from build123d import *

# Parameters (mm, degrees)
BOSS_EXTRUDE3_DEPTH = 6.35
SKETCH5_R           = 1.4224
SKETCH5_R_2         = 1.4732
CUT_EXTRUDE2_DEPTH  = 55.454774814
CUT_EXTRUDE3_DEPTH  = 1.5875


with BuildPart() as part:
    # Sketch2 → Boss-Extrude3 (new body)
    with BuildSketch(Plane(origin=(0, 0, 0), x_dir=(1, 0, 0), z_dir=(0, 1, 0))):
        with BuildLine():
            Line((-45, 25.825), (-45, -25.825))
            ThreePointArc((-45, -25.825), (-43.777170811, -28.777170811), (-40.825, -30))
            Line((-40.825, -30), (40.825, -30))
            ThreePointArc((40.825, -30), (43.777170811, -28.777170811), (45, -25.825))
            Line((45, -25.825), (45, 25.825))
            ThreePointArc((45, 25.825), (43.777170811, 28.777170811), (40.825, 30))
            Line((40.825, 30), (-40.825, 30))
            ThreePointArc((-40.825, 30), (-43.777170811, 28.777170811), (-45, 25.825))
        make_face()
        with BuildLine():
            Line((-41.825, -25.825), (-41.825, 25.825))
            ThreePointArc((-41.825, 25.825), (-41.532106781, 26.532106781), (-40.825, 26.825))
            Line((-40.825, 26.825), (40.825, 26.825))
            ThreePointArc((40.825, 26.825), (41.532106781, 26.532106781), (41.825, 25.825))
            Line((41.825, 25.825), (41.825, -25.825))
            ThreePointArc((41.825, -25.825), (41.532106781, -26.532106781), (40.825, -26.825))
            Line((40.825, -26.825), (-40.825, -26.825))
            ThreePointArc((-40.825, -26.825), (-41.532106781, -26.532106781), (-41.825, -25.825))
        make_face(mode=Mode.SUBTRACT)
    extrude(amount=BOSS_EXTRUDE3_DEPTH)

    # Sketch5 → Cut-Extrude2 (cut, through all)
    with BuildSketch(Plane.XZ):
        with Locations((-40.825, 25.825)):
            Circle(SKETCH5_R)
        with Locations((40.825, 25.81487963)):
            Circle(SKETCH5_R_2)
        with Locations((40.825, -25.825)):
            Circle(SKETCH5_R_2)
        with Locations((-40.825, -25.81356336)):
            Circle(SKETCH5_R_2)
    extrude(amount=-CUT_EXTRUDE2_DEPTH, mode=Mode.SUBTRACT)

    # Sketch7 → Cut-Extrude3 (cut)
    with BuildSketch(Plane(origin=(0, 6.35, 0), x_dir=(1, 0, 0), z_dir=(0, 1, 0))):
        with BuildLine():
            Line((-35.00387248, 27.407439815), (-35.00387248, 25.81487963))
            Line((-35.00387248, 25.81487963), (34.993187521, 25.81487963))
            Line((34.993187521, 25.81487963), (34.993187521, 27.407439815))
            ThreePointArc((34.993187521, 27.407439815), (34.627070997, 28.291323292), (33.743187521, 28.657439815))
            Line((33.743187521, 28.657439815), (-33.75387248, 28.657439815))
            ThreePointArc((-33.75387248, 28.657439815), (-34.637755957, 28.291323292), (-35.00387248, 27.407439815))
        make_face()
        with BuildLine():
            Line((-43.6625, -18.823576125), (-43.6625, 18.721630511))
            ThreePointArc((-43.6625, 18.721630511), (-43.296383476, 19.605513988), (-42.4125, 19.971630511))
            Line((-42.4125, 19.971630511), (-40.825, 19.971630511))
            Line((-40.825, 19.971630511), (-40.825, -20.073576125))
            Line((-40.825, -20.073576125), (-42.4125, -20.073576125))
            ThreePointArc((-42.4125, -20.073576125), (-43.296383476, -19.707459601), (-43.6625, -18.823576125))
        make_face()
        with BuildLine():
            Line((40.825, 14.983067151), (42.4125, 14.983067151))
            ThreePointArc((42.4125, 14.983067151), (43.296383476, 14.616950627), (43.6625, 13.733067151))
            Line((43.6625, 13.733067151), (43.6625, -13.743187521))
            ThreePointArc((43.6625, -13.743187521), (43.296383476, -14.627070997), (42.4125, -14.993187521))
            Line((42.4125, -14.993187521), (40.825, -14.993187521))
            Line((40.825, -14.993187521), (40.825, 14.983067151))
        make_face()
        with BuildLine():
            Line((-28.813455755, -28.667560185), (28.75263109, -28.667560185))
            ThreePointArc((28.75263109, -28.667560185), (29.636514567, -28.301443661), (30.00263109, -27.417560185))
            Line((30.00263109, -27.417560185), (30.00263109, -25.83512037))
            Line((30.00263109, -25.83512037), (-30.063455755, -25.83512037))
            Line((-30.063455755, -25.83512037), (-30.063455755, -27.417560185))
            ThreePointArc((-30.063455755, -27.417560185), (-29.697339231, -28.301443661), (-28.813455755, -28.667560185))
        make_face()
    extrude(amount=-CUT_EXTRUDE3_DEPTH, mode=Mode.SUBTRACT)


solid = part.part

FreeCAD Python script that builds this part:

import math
import FreeCAD as App
import Part
import Sketcher
from FreeCAD import Vector
Q = App.Units.Quantity

doc = App.newDocument("Part")
body = doc.addObject("PartDesign::Body", "Body")

sketch1 = doc.addObject("Sketcher::SketchObject", "Sketch")
body.addObject(sketch1)
sketch1.AttachmentSupport = (doc.XZ_Plane, [""])
sketch1.MapMode = "FlatFace"
sketch1.addGeometry([
    Part.LineSegment(Vector(-45, -25.8, 0), Vector(-45, 25.8, 0)),
    Part.ArcOfCircle(Part.Circle(Vector(-40.8, 25.8, 0), Vector(0, 0, 1), 4.2), math.radians(90), math.radians(180)),
    Part.LineSegment(Vector(-40.8, 30, 0), Vector(40.8, 30, 0)),
    Part.ArcOfCircle(Part.Circle(Vector(40.8, 25.8, 0), Vector(0, 0, 1), 4.2), math.radians(0), math.radians(90)),
    Part.LineSegment(Vector(45, 25.8, 0), Vector(45, -25.8, 0)),
    Part.ArcOfCircle(Part.Circle(Vector(40.8, -25.8, 0), Vector(0, 0, 1), 4.2), math.radians(-90), math.radians(0)),
    Part.LineSegment(Vector(40.8, -30, 0), Vector(-40.8, -30, 0)),
    Part.ArcOfCircle(Part.Circle(Vector(-40.8, -25.8, 0), Vector(0, 0, 1), 4.2), math.radians(-180), math.radians(-90)),
    Part.ArcOfCircle(Part.Circle(Vector(-40.8, 25.8, 0), Vector(0, 0, 1), 1), math.radians(90), math.radians(180)),
    Part.LineSegment(Vector(-41.8, 25.8, 0), Vector(-41.8, -25.8, 0)),
    Part.ArcOfCircle(Part.Circle(Vector(-40.8, -25.8, 0), Vector(0, 0, 1), 1), math.radians(-180), math.radians(-90)),
    Part.LineSegment(Vector(-40.8, -26.8, 0), Vector(40.8, -26.8, 0)),
    Part.ArcOfCircle(Part.Circle(Vector(40.8, -25.8, 0), Vector(0, 0, 1), 1), math.radians(-90), math.radians(0)),
    Part.LineSegment(Vector(41.8, -25.8, 0), Vector(41.8, 25.8, 0)),
    Part.ArcOfCircle(Part.Circle(Vector(40.8, 25.8, 0), Vector(0, 0, 1), 1), math.radians(0), math.radians(90)),
    Part.LineSegment(Vector(40.8, 26.8, 0), Vector(-40.8, 26.8, 0)),
], False)
sketch1.addConstraint([
    Sketcher.Constraint("Tangent", 0, 2, 1, 2),
    Sketcher.Constraint("Tangent", 1, 1, 2, 1),
    Sketcher.Constraint("Tangent", 2, 2, 3, 2),
    Sketcher.Constraint("Tangent", 3, 1, 4, 1),
    Sketcher.Constraint("Tangent", 4, 2, 5, 2),
    Sketcher.Constraint("Tangent", 5, 1, 6, 1),
    Sketcher.Constraint("Tangent", 6, 2, 7, 2),
    Sketcher.Constraint("Tangent", 7, 1, 0, 1),
    Sketcher.Constraint("Tangent", 8, 2, 9, 1),
    Sketcher.Constraint("Tangent", 9, 2, 10, 1),
    Sketcher.Constraint("Tangent", 10, 2, 11, 1),
    Sketcher.Constraint("Tangent", 11, 2, 12, 1),
    Sketcher.Constraint("Tangent", 12, 2, 13, 1),
    Sketcher.Constraint("Tangent", 13, 2, 14, 1),
    Sketcher.Constraint("Tangent", 14, 2, 15, 1),
    Sketcher.Constraint("Tangent", 15, 2, 8, 1),
    Sketcher.Constraint("Vertical", 0),
    Sketcher.Constraint("Horizontal", 2),
    Sketcher.Constraint("Vertical", 4),
    Sketcher.Constraint("Horizontal", 6),
    Sketcher.Constraint("Vertical", 9),
    Sketcher.Constraint("Horizontal", 11),
    Sketcher.Constraint("Vertical", 13),
    Sketcher.Constraint("Horizontal", 15),
    Sketcher.Constraint("Coincident", 8, 3, 1, 3),
    Sketcher.Constraint("Coincident", 10, 3, 7, 3),
    Sketcher.Constraint("Coincident", 12, 3, 5, 3),
    Sketcher.Constraint("Equal", 1, 3),
    Sketcher.Constraint("Equal", 3, 5),
    Sketcher.Constraint("Equal", 5, 7),
    Sketcher.Constraint("Equal", 12, 14),
    Sketcher.Constraint("Symmetric", 1, 3, 5, 3, -1, 1),
    Sketcher.Constraint("Radius", 1, 4.175),
    Sketcher.Constraint("Radius", 8, 1.0),
    Sketcher.Constraint("DistanceX", 2, 1, 2, 2, 81.65),
    Sketcher.Constraint("DistanceY", 0, 1, 0, 2, 51.65),
])
pad1 = doc.addObject("PartDesign::Pad", "Pad")
body.addObject(pad1)
pad1.Profile = sketch1
pad1.Length = Q("0.25 in")
pad1.Reversed = True

sketch2 = doc.addObject("Sketcher::SketchObject", "Sketch001")
body.addObject(sketch2)
sketch2.AttachmentSupport = (doc.XZ_Plane, [""])
sketch2.MapMode = "FlatFace"
sketch2.addGeometry([
    Part.Circle(Vector(-40.8, 25.8, 0), Vector(0, 0, 1), 1.4),
    Part.Circle(Vector(40.8, 25.8, 0), Vector(0, 0, 1), 1.5),
    Part.Circle(Vector(40.8, -25.8, 0), Vector(0, 0, 1), 1.5),
    Part.Circle(Vector(-40.8, -25.8, 0), Vector(0, 0, 1), 1.5),
], False)
sketch2.addConstraint([
    Sketcher.Constraint("Equal", 1, 2),
    Sketcher.Constraint("Equal", 2, 3),
    Sketcher.Constraint("Symmetric", 0, 3, 2, 3, -1, 1),
    Sketcher.Constraint("Vertical", 1, 3, 2, 3),
    Sketcher.Constraint("Vertical", 0, 3, 3, 3),
    Sketcher.Constraint("Diameter", 0, Q("0.112 in")),
    Sketcher.Constraint("Diameter", 1, Q("0.116 in")),
    Sketcher.Constraint("DistanceX", 0, 3, -1, 1, 40.825),
    Sketcher.Constraint("DistanceY", -1, 1, 0, 3, 25.825),
    Sketcher.Constraint("DistanceY", -1, 1, 1, 3, 25.81488),
    Sketcher.Constraint("DistanceY", 3, 3, -1, 1, 25.813563),
])
pocket1 = doc.addObject("PartDesign::Pocket", "Pocket")
body.addObject(pocket1)
pocket1.Profile = sketch2
pocket1.Type = "ThroughAll"

sketch3 = doc.addObject("Sketcher::SketchObject", "Sketch002")
body.addObject(sketch3)
sketch3.AttachmentSupport = (doc.XZ_Plane, [""])
sketch3.MapMode = "FlatFace"
sketch3.AttachmentOffset = App.Placement(Vector(0, 0, -0.25 * 25.4), App.Rotation())
sketch3.addGeometry([
    Part.LineSegment(Vector(-35, -27.4, 0), Vector(-35, -25.8, 0)),
    Part.LineSegment(Vector(-35, -25.8, 0), Vector(35, -25.8, 0)),
    Part.LineSegment(Vector(35, -25.8, 0), Vector(35, -27.4, 0)),
    Part.ArcOfCircle(Part.Circle(Vector(33.7, -27.4, 0), Vector(0, 0, 1), 1.2), math.radians(-90), math.radians(0)),
    Part.LineSegment(Vector(33.7, -28.7, 0), Vector(-33.8, -28.7, 0)),
    Part.ArcOfCircle(Part.Circle(Vector(-33.8, -27.4, 0), Vector(0, 0, 1), 1.2), math.radians(180), math.radians(270)),
    Part.LineSegment(Vector(-43.7, -18.7, 0), Vector(-43.7, 18.8, 0)),
    Part.ArcOfCircle(Part.Circle(Vector(-42.4, 18.8, 0), Vector(0, 0, 1), 1.3), math.radians(90), math.radians(180)),
    Part.LineSegment(Vector(-42.4, 20.1, 0), Vector(-40.8, 20.1, 0)),
    Part.LineSegment(Vector(-40.8, 20.1, 0), Vector(-40.8, -20, 0)),
    Part.LineSegment(Vector(-40.8, -20, 0), Vector(-42.4, -20, 0)),
    Part.ArcOfCircle(Part.Circle(Vector(-42.4, -18.7, 0), Vector(0, 0, 1), 1.2), math.radians(180), math.radians(270)),
    Part.LineSegment(Vector(42.4, -15, 0), Vector(40.8, -15, 0)),
    Part.LineSegment(Vector(40.8, -15, 0), Vector(40.8, 15, 0)),
    Part.LineSegment(Vector(40.8, 15, 0), Vector(42.4, 15, 0)),
    Part.ArcOfCircle(Part.Circle(Vector(42.4, 13.7, 0), Vector(0, 0, 1), 1.3), math.radians(0), math.radians(90)),
    Part.LineSegment(Vector(43.7, 13.7, 0), Vector(43.7, -13.7, 0)),
    Part.ArcOfCircle(Part.Circle(Vector(42.4, -13.7, 0), Vector(0, 0, 1), 1.3), math.radians(-90), math.radians(0)),
    Part.LineSegment(Vector(-28.8, 28.7, 0), Vector(28.8, 28.7, 0)),
    Part.ArcOfCircle(Part.Circle(Vector(28.8, 27.4, 0), Vector(0, 0, 1), 1.2), math.radians(0), math.radians(90)),
    Part.LineSegment(Vector(30, 27.4, 0), Vector(30, 25.8, 0)),
    Part.LineSegment(Vector(30, 25.8, 0), Vector(-30.1, 25.8, 0)),
    Part.LineSegment(Vector(-30.1, 25.8, 0), Vector(-30.1, 27.4, 0)),
    Part.ArcOfCircle(Part.Circle(Vector(-28.8, 27.4, 0), Vector(0, 0, 1), 1.3), math.radians(90), math.radians(180)),
], False)
sketch3.addConstraint([
    Sketcher.Constraint("Coincident", 0, 2, 1, 1),
    Sketcher.Constraint("Coincident", 1, 2, 2, 1),
    Sketcher.Constraint("Tangent", 2, 2, 3, 2),
    Sketcher.Constraint("Tangent", 3, 1, 4, 1),
    Sketcher.Constraint("Tangent", 4, 2, 5, 2),
    Sketcher.Constraint("Tangent", 5, 1, 0, 1),
    Sketcher.Constraint("Tangent", 6, 2, 7, 2),
    Sketcher.Constraint("Tangent", 7, 1, 8, 1),
    Sketcher.Constraint("Coincident", 8, 2, 9, 1),
    Sketcher.Constraint("Coincident", 9, 2, 10, 1),
    Sketcher.Constraint("Tangent", 10, 2, 11, 2),
    Sketcher.Constraint("Tangent", 11, 1, 6, 1),
    Sketcher.Constraint("Coincident", 12, 2, 13, 1),
    Sketcher.Constraint("Coincident", 13, 2, 14, 1),
    Sketcher.Constraint("Tangent", 14, 2, 15, 2),
    Sketcher.Constraint("Tangent", 15, 1, 16, 1),
    Sketcher.Constraint("Tangent", 16, 2, 17, 2),
    Sketcher.Constraint("Tangent", 17, 1, 12, 1),
    Sketcher.Constraint("Tangent", 18, 2, 19, 2),
    Sketcher.Constraint("Tangent", 19, 1, 20, 1),
    Sketcher.Constraint("Coincident", 20, 2, 21, 1),
    Sketcher.Constraint("Coincident", 21, 2, 22, 1),
    Sketcher.Constraint("Tangent", 22, 2, 23, 2),
    Sketcher.Constraint("Tangent", 23, 1, 18, 1),
    Sketcher.Constraint("Vertical", 0),
    Sketcher.Constraint("Horizontal", 1),
    Sketcher.Constraint("Vertical", 2),
    Sketcher.Constraint("Horizontal", 4),
    Sketcher.Constraint("Vertical", 6),
    Sketcher.Constraint("Horizontal", 8),
    Sketcher.Constraint("Vertical", 9),
    Sketcher.Constraint("Horizontal", 10),
    Sketcher.Constraint("Horizontal", 12),
    Sketcher.Constraint("Vertical", 13),
    Sketcher.Constraint("Horizontal", 14),
    Sketcher.Constraint("Vertical", 16),
    Sketcher.Constraint("Horizontal", 18),
    Sketcher.Constraint("Vertical", 20),
    Sketcher.Constraint("Horizontal", 21),
    Sketcher.Constraint("Vertical", 22),
    Sketcher.Constraint("Equal", 3, 5),
    Sketcher.Constraint("Equal", 5, 7),
    Sketcher.Constraint("Equal", 7, 11),
    Sketcher.Constraint("Equal", 11, 15),
    Sketcher.Constraint("Equal", 15, 17),
    Sketcher.Constraint("Equal", 17, 19),
    Sketcher.Constraint("Equal", 19, 23),
    Sketcher.Constraint("Equal", 10, 12),
    Sketcher.Constraint("DistanceX", 8, 1, 8, 2, Q("0.0625 in")),
    Sketcher.Constraint("Radius", 3, 1.25),
    Sketcher.Constraint("DistanceY", 11, 3, 17, 3, Q("0.1964001 in")),
    Sketcher.Constraint("DistanceX", 1, 1, 1, 2, 69.99706),
    Sketcher.Constraint("DistanceY", 0, 1, 0, 2, 1.59256),
    Sketcher.Constraint("DistanceY", 20, 2, 20, 1, 1.58244),
    Sketcher.Constraint("DistanceX", 7, 3, -1, 1, 42.4125),
    Sketcher.Constraint("DistanceX", -1, 1, 15, 3, 42.4125),
    Sketcher.Constraint("DistanceY", 3, 3, 19, 3, 54.825),
    Sketcher.Constraint("DistanceX", 18, 1, 18, 2, 57.566087),
    Sketcher.Constraint("DistanceY", 6, 1, 6, 2, 37.545207),
    Sketcher.Constraint("DistanceY", 13, 1, 13, 2, 29.976255),
    Sketcher.Constraint("DistanceY", 3, 3, -1, 1, 27.40744),
    Sketcher.Constraint("DistanceY", 11, 3, -1, 1, 18.721631),
    Sketcher.Constraint("DistanceX", -1, 1, 19, 3, 28.752631),
    Sketcher.Constraint("DistanceX", -1, 1, 3, 3, 33.743188),
])
pocket2 = doc.addObject("PartDesign::Pocket", "Pocket001")
body.addObject(pocket2)
pocket2.Profile = sketch3
pocket2.Length = Q("0.0625 in")
pocket2.Reversed = True

doc.recompute()
